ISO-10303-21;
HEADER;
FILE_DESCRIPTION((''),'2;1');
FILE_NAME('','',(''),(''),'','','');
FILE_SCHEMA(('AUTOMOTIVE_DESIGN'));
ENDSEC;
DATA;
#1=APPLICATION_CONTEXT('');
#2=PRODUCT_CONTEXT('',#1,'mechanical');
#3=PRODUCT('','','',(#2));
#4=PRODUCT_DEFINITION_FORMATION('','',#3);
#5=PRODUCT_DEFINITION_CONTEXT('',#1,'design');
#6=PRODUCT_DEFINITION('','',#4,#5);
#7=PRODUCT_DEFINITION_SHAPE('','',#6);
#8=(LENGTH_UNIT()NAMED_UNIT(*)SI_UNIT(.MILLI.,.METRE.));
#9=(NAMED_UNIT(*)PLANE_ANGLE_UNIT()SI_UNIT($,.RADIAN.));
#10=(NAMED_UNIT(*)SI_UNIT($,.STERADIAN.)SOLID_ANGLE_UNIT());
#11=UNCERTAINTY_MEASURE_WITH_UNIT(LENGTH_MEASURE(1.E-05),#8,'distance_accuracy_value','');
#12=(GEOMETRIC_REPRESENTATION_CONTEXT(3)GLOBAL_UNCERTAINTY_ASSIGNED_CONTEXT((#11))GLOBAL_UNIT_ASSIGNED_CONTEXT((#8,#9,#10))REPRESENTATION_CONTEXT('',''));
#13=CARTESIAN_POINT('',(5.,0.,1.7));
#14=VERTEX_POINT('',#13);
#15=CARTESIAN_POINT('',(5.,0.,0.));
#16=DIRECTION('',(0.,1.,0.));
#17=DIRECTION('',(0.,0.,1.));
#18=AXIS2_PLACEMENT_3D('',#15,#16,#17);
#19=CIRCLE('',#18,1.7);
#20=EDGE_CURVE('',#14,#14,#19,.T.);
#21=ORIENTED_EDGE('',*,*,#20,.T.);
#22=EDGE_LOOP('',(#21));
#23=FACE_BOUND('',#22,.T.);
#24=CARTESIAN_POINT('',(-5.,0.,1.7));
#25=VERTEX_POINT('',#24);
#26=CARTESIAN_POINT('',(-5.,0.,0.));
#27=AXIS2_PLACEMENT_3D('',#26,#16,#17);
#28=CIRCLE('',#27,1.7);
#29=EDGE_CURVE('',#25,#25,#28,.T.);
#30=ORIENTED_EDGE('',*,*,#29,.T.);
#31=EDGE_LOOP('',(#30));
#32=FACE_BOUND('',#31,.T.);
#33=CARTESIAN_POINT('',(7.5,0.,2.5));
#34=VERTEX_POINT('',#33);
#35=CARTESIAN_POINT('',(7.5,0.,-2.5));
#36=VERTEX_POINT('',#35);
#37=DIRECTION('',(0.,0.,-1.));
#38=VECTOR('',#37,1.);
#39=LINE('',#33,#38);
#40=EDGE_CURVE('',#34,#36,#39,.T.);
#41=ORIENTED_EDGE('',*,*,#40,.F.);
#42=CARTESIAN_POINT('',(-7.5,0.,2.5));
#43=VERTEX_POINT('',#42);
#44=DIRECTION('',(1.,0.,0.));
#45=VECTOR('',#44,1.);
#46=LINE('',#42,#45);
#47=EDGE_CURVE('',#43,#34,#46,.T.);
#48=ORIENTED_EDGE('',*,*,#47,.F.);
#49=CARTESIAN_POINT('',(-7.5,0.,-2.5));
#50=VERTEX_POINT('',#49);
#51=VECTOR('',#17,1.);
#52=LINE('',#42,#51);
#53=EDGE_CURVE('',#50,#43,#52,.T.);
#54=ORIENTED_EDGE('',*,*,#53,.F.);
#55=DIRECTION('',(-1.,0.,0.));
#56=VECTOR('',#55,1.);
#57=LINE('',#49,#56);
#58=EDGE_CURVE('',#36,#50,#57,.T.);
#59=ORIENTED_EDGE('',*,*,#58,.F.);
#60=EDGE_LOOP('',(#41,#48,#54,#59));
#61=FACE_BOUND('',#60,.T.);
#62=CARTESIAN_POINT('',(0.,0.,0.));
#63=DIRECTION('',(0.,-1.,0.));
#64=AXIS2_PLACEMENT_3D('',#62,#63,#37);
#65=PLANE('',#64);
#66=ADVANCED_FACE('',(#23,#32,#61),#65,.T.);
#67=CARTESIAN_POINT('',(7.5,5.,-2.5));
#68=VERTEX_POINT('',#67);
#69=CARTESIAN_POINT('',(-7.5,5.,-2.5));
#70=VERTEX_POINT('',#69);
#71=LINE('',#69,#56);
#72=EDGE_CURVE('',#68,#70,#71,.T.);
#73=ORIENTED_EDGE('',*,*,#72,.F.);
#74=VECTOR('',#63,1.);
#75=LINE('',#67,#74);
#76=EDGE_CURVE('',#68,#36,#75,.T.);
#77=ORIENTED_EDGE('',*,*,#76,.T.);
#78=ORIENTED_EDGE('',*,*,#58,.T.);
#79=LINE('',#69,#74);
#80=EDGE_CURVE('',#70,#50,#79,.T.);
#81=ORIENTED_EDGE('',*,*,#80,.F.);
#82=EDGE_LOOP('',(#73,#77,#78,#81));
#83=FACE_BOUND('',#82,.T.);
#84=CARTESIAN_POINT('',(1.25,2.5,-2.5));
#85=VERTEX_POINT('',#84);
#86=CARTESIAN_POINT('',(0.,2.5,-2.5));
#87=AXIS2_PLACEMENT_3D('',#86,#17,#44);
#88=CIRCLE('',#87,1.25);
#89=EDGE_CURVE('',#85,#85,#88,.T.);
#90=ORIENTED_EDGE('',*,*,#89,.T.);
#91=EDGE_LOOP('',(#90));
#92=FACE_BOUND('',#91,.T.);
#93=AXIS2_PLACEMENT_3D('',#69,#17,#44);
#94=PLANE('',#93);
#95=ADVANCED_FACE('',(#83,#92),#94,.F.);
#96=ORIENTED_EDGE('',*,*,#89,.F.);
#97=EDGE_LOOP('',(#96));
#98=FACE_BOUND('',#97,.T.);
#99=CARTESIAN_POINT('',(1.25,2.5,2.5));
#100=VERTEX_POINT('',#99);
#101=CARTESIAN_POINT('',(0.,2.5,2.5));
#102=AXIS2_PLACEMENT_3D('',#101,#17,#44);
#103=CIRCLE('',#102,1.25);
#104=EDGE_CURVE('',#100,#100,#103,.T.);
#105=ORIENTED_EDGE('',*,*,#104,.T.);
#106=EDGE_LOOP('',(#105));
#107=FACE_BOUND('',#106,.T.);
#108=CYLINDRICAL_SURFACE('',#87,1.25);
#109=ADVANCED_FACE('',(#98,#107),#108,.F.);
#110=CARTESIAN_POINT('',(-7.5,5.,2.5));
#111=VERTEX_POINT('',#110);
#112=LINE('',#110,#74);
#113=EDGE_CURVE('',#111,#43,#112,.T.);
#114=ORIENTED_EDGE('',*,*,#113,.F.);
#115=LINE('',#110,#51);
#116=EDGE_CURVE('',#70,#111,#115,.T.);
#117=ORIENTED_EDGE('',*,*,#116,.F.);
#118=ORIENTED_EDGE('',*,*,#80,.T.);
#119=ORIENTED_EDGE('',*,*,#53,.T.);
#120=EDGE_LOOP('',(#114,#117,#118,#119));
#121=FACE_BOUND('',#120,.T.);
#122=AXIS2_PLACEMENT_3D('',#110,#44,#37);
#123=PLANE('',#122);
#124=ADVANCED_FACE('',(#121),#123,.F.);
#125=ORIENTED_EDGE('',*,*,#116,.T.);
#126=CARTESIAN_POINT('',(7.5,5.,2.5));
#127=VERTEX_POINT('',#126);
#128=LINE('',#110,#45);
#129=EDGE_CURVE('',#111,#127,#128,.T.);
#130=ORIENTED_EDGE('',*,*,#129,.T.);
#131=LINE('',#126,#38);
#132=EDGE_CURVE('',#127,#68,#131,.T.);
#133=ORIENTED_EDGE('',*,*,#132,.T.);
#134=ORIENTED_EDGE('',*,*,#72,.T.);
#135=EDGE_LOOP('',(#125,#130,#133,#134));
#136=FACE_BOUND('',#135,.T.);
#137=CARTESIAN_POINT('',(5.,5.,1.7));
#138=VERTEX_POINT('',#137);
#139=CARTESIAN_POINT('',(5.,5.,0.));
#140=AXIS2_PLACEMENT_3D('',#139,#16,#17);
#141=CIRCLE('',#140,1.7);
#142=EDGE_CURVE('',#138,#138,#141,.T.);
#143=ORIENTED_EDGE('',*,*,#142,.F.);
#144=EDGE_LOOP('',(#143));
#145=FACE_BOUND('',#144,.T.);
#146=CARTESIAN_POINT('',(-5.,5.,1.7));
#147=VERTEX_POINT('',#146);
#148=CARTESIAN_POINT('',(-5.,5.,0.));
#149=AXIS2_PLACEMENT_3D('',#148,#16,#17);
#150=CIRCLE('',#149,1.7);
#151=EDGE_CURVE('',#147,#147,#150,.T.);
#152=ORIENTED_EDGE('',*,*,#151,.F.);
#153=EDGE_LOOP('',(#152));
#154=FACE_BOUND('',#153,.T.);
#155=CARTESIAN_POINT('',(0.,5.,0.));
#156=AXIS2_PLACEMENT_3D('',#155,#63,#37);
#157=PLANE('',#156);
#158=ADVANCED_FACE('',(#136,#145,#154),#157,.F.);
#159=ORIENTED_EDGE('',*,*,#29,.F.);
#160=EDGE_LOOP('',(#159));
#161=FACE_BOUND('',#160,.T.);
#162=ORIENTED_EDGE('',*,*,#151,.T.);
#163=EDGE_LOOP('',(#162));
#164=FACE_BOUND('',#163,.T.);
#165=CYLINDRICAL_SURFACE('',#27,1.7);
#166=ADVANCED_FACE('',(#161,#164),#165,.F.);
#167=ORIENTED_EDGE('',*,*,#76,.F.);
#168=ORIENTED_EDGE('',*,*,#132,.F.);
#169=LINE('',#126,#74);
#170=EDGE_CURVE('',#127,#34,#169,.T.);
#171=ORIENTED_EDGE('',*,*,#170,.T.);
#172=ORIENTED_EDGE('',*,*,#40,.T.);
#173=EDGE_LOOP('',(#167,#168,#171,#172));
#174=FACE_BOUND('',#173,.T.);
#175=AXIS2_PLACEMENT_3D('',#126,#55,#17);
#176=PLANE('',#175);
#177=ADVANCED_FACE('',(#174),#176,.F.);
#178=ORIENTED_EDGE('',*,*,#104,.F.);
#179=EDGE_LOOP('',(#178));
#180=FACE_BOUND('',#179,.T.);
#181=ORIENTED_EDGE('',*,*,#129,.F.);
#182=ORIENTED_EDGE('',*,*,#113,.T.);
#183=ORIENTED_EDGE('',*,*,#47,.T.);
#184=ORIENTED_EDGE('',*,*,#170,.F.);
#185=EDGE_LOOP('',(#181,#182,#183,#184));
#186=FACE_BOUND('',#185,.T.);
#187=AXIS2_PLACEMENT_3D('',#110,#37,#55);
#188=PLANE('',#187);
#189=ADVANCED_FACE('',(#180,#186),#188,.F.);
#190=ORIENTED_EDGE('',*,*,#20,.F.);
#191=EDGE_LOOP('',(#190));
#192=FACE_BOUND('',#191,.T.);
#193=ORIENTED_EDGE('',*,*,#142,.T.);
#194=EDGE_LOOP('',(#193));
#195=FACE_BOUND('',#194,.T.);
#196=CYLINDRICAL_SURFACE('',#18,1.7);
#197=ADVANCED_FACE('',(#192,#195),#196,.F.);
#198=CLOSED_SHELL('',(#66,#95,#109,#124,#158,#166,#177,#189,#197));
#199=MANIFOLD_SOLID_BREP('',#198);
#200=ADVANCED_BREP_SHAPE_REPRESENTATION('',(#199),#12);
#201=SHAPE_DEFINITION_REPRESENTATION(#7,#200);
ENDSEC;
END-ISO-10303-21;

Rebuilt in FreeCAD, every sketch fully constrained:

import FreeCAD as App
import Part
import Sketcher
Q = App.Units.Quantity

doc = App.newDocument("Part")
params = doc.addObject("Spreadsheet::Sheet", "Params")
for row, (alias, value) in enumerate([
    ("sketch1_width", "15 mm"),
    ("sketch1_height", "5 mm"),
    ("pad1_length", "5 mm"),
    ("sketch2_diameter", "3.4 mm"),
    ("sketch3_diameter", "2.5 mm"),
], start=1):
    params.set(f"A{row}", alias)
    params.set(f"B{row}", "=" + value)
    params.setAlias(f"B{row}", alias)

body = doc.addObject("PartDesign::Body", "Body")

sketch1 = body.newObject("Sketcher::SketchObject", "Sketch")
sketch1.AttachmentSupport = (doc.getObject("XZ_Plane"), [""])
sketch1.MapMode = "FlatFace"
sketch1.addGeometry([
    Part.LineSegment(App.Vector(-8, -2, 0), App.Vector(-8, 2, 0)),
    Part.LineSegment(App.Vector(-8, 2, 0), App.Vector(8, 2, 0)),
    Part.LineSegment(App.Vector(8, 2, 0), App.Vector(8, -2, 0)),
    Part.LineSegment(App.Vector(8, -2, 0), App.Vector(-8, -2, 0)),
], False)
sketch1.addConstraint([
    Sketcher.Constraint("Coincident", 0, 2, 1, 1),
    Sketcher.Constraint("Coincident", 1, 2, 2, 1),
    Sketcher.Constraint("Coincident", 2, 2, 3, 1),
    Sketcher.Constraint("Coincident", 3, 2, 0, 1),
    Sketcher.Constraint("Vertical", 0),
    Sketcher.Constraint("Horizontal", 1),
    Sketcher.Constraint("Vertical", 2),
    Sketcher.Constraint("Horizontal", 3),
    Sketcher.Constraint("Symmetric", 0, 2, 2, 2, -1, 1),
    Sketcher.Constraint("DistanceX", 1, 1, 1, 2, Q("15 mm")),
    Sketcher.Constraint("DistanceY", 0, 1, 0, 2, Q("5 mm")),
])
sketch1.setExpression("Constraints[9]", "Params.sketch1_width")
sketch1.setExpression("Constraints[10]", "Params.sketch1_height")
pad1 = body.newObject("PartDesign::Pad", "Pad")
pad1.Profile = sketch1
pad1.setExpression("Length", "Params.pad1_length")
pad1.Reversed = True

sketch2 = body.newObject("Sketcher::SketchObject", "Sketch001")
sketch2.AttachmentSupport = (doc.getObject("XZ_Plane"), [""])
sketch2.MapMode = "FlatFace"
sketch2.AttachmentOffset = App.Placement(App.Vector(0, 0, -5), App.Rotation())
sketch2.addGeometry([
    Part.Circle(App.Vector(-5, 0, 0), App.Vector(0, 0, 1), 1.7),
    Part.Circle(App.Vector(5, 0, 0), App.Vector(0, 0, 1), 1.7),
], False)
sketch2.addConstraint([
    Sketcher.Constraint("Equal", 0, 1),
    Sketcher.Constraint("Symmetric", 0, 3, 1, 3, -1, 1),
    Sketcher.Constraint("PointOnObject", 0, 3, -1),
    Sketcher.Constraint("Diameter", 0, Q("3.4 mm")),
    Sketcher.Constraint("DistanceX", 0, 3, -1, 1, Q("5 mm")),
])
sketch2.setExpression("Constraints[3]", "Params.sketch2_diameter")
pocket1 = body.newObject("PartDesign::Pocket", "Pocket")
pocket1.Profile = sketch2
pocket1.Type = "ThroughAll"
pocket1.Reversed = True

sketch3 = body.newObject("Sketcher::SketchObject", "Sketch002")
sketch3.AttachmentSupport = (doc.getObject("XY_Plane"), [""])
sketch3.MapMode = "FlatFace"
sketch3.AttachmentOffset = App.Placement(App.Vector(0, 0, 2.5), App.Rotation())
sketch3.addGeometry(Part.Circle(App.Vector(0, 2.5, 0), App.Vector(0, 0, 1), 1.2), False)
sketch3.addConstraint([
    Sketcher.Constraint("PointOnObject", 0, 3, -2),
    Sketcher.Constraint("Diameter", 0, Q("2.5 mm")),
    Sketcher.Constraint("DistanceY", -1, 1, 0, 3, Q("2.5 mm")),
])
sketch3.setExpression("Constraints[1]", "Params.sketch3_diameter")
pocket2 = body.newObject("PartDesign::Pocket", "Pocket001")
pocket2.Profile = sketch3
pocket2.Type = "ThroughAll"

doc.recompute()
